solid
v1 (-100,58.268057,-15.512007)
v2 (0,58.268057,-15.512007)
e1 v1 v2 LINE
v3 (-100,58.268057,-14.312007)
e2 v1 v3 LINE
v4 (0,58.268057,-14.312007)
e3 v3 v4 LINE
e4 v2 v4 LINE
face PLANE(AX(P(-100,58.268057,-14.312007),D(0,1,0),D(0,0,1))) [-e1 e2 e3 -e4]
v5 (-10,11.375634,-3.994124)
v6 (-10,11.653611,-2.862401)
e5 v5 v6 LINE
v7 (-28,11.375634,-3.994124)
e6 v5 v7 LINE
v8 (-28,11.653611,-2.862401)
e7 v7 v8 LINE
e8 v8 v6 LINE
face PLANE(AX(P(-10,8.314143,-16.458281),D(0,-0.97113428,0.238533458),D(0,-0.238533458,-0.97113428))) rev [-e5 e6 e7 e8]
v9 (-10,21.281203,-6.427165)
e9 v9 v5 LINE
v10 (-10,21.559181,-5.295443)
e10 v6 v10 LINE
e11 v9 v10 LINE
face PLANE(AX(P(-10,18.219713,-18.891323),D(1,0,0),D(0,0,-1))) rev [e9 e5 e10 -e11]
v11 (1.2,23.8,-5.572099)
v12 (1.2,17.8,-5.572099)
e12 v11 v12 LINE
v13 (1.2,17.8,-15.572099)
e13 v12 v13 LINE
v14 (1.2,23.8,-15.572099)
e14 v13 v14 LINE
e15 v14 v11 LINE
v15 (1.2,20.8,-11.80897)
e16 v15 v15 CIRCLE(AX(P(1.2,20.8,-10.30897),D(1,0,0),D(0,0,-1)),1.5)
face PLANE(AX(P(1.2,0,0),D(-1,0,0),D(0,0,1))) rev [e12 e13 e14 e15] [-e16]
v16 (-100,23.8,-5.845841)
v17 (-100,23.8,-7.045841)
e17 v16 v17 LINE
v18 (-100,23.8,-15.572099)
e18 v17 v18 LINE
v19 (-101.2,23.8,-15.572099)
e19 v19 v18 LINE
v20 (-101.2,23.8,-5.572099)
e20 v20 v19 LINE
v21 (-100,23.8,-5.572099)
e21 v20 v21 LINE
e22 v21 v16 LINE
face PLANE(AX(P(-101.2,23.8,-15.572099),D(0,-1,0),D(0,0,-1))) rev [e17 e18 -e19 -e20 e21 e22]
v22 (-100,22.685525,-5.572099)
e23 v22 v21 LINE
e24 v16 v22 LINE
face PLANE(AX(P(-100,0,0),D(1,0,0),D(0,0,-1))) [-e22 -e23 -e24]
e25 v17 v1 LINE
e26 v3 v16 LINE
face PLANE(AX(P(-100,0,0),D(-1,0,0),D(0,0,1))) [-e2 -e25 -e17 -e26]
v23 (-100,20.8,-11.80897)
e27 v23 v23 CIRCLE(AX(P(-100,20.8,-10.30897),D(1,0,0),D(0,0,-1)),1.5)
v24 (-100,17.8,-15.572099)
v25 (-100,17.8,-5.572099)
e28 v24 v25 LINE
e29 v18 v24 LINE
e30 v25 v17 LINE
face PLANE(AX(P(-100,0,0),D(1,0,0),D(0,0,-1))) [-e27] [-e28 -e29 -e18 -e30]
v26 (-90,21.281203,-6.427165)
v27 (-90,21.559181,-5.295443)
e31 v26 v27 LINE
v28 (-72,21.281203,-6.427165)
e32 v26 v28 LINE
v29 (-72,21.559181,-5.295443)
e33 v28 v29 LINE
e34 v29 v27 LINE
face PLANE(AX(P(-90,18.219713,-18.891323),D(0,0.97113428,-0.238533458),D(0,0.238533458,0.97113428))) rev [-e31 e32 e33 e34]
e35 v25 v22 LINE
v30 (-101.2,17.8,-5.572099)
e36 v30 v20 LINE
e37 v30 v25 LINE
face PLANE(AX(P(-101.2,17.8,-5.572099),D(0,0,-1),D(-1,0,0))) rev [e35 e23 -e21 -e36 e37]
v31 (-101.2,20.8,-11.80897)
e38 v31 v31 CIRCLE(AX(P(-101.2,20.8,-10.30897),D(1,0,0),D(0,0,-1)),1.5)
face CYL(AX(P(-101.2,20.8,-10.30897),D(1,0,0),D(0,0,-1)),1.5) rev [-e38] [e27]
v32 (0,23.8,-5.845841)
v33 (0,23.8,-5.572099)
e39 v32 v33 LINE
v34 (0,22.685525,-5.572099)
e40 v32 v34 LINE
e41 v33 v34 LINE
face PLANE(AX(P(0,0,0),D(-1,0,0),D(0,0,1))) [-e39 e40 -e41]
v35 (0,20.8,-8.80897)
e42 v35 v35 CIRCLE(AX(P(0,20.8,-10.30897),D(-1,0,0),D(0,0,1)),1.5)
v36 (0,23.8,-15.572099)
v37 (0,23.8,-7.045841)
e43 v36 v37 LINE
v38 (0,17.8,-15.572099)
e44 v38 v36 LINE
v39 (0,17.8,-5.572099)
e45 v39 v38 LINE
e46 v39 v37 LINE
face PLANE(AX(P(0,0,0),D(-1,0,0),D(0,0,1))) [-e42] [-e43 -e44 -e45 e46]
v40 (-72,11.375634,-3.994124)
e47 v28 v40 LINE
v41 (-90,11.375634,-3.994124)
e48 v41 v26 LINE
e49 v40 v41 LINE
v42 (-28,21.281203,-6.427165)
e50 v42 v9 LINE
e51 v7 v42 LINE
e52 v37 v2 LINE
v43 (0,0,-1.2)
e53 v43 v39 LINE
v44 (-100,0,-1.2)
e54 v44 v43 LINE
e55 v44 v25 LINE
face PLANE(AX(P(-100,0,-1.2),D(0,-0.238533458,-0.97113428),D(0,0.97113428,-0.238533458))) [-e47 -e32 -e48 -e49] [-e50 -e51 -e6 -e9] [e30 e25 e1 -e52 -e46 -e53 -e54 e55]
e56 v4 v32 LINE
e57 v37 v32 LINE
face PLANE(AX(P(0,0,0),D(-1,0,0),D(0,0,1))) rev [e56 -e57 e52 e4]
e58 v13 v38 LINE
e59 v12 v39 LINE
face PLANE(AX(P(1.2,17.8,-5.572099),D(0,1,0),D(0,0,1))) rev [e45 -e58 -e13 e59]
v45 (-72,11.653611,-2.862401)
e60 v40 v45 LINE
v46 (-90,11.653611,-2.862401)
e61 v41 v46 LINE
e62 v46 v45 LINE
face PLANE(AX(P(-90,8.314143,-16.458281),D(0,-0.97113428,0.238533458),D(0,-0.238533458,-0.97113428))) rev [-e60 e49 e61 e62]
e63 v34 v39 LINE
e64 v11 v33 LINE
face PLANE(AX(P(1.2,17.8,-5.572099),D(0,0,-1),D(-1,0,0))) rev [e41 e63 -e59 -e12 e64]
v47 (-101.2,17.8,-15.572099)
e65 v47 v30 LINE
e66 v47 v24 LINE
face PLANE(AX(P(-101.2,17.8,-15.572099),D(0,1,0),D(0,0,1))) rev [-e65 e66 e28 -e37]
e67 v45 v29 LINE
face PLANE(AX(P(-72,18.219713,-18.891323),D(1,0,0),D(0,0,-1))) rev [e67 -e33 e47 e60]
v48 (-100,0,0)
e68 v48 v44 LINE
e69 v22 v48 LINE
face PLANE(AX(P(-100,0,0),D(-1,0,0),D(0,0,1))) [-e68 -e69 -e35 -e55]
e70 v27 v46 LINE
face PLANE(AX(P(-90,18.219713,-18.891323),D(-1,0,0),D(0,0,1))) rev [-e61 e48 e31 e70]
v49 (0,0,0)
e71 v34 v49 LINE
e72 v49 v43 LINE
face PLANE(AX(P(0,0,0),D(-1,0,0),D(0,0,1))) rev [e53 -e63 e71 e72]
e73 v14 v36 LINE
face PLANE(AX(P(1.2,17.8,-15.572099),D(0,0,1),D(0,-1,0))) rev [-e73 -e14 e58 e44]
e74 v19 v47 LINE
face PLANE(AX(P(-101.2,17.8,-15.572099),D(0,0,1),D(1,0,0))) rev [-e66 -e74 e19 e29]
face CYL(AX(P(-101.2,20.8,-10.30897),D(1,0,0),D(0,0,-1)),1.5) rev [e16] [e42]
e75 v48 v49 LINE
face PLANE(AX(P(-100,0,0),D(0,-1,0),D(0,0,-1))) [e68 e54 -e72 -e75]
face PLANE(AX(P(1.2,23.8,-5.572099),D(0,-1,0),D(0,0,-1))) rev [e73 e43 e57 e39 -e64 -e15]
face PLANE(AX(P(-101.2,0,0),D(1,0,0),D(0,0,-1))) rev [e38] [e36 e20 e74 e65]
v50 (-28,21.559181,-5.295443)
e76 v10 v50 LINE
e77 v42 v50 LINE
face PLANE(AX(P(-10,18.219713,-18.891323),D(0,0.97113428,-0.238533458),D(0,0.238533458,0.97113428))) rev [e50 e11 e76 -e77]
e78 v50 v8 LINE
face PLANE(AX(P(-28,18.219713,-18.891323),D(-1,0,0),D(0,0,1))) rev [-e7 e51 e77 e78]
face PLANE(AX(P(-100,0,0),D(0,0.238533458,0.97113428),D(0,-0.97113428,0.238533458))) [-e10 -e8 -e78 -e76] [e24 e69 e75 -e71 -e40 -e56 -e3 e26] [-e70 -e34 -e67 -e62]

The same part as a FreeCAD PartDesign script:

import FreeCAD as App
import Part
import Sketcher

V = App.Vector
Q = App.Units.Quantity


def add_polygon(sketch, points):
    """Adds a closed chain of lines whose ends are joined by coincident constraints."""
    first, n = sketch.GeometryCount, len(points)
    for a, b in zip(points, points[1:] + points[:1]):
        sketch.addGeometry(Part.LineSegment(App.Vector(*a, 0), App.Vector(*b, 0)), False)
    for i in range(n):
        sketch.addConstraint(Sketcher.Constraint("Coincident", first + i, 2, first + (i + 1) % n, 1))

doc = App.newDocument("Part")
body = doc.addObject("PartDesign::Body", "Body")

sketch1 = body.newObject("Sketcher::SketchObject", "Sketch")
sketch1.AttachmentSupport = (doc.getObject("YZ_Plane"), [""])
sketch1.MapMode = "FlatFace"
add_polygon(sketch1, [(0, 0), (0, -1.2), (58.3, -15.5), (58.3, -14.3)])
sketch1.addConstraint([
    Sketcher.Constraint("Vertical", 0),
    Sketcher.Constraint("Vertical", 2),
    Sketcher.Constraint("Coincident", 3, 2, -1, 1),
    Sketcher.Constraint("Parallel", 1, 3),
    Sketcher.Constraint("Distance", 1, Q("60 mm")),
    Sketcher.Constraint("DistanceY", 0, 2, 0, 1, Q("1.2 mm")),
    Sketcher.Constraint("Angle", 1, Q("-13.8 deg")),
])
pad1 = body.newObject("PartDesign::Pad", "Pad")
pad1.Profile = sketch1
pad1.Length = 100
pad1.Reversed = True

sketch2 = body.newObject("Sketcher::SketchObject", "Sketch001")
sketch2.AttachmentSupport = (doc.getObject("YZ_Plane"), [""])
sketch2.MapMode = "FlatFace"
add_polygon(sketch2, [(24, -6), (18, -6), (18, -16), (24, -16)])
sketch2.addConstraint([
    Sketcher.Constraint("Horizontal", 0),
    Sketcher.Constraint("Vertical", 1),
    Sketcher.Constraint("Horizontal", 2),
    Sketcher.Constraint("Vertical", 3),
    Sketcher.Constraint("DistanceX", 0, 2, 0, 1, Q("6 mm")),
    Sketcher.Constraint("DistanceY", 1, 2, 1, 1, Q("10 mm")),
    Sketcher.Constraint("DistanceX", -1, 1, 0, 2, Q("17.8 mm")),
    Sketcher.Constraint("DistanceY", 0, 2, -1, 1, Q("5.572099 mm")),
])
pad2 = body.newObject("PartDesign::Pad", "Pad001")
pad2.Profile = sketch2
pad2.Length = 1.2

sketch3 = body.newObject("Sketcher::SketchObject", "Sketch002")
sketch3.AttachmentSupport = (doc.getObject("YZ_Plane"), [""])
sketch3.MapMode = "FlatFace"
sketch3.AttachmentOffset = App.Placement(V(0, 0, -100), App.Rotation())
add_polygon(sketch3, [(24, -16), (18, -16), (18, -6), (24, -6)])
sketch3.addConstraint([
    Sketcher.Constraint("Horizontal", 0),
    Sketcher.Constraint("Vertical", 1),
    Sketcher.Constraint("Horizontal", 2),
    Sketcher.Constraint("Vertical", 3),
    Sketcher.Constraint("DistanceX", 0, 2, 0, 1, Q("6 mm")),
    Sketcher.Constraint("DistanceY", 1, 1, 1, 2, Q("10 mm")),
    Sketcher.Constraint("DistanceX", -1, 1, 0, 2, Q("17.8 mm")),
    Sketcher.Constraint("DistanceY", 0, 2, -1, 1, Q("15.572099 mm")),
])
pad3 = body.newObject("PartDesign::Pad", "Pad002")
pad3.Profile = sketch3
pad3.Length = 1.2
pad3.Reversed = True

sketch4 = body.newObject("Sketcher::SketchObject", "Sketch003")
sketch4.AttachmentSupport = (doc.getObject("YZ_Plane"), [""])
sketch4.MapMode = "FlatFace"
sketch4.AttachmentOffset = App.Placement(V(0, 0, 1.2), App.Rotation())
sketch4.addGeometry(Part.Circle(V(20.8, -10.3, 0), V(0, 0, 1), 1.5), False)
sketch4.addConstraint([
    Sketcher.Constraint("Diameter", 0, Q("3 mm")),
    Sketcher.Constraint("DistanceX", -1, 1, 0, 3, Q("20.8 mm")),
    Sketcher.Constraint("DistanceY", 0, 3, -1, 1, Q("10.30897 mm")),
])
pocket1 = body.newObject("PartDesign::Pocket", "Pocket")
pocket1.Profile = sketch4
pocket1.Type = "ThroughAll"

sketch5 = body.newObject("Sketcher::SketchObject", "Sketch004")
sketch5.Placement = App.Placement(V(0, 0, 0), App.Rotation(V(1, 0, 0), V(0, 0.97113428, -0.238533458), V(0, 0.238533458, 0.97113428), "ZXY"))
add_polygon(sketch5, [(-90, 22), (-90, 12), (-72, 12), (-72, 22)])
add_polygon(sketch5, [(-28, 22), (-28, 12), (-10, 12), (-10, 22)])
sketch5.addConstraint([
    Sketcher.Constraint("Vertical", 0),
    Sketcher.Constraint("Horizontal", 1),
    Sketcher.Constraint("Vertical", 2),
    Sketcher.Constraint("Horizontal", 3),
    Sketcher.Constraint("Vertical", 4),
    Sketcher.Constraint("Horizontal", 5),
    Sketcher.Constraint("Vertical", 6),
    Sketcher.Constraint("Horizontal", 7),
    Sketcher.Constraint("Horizontal", 1, 2, 4, 2),
    Sketcher.Constraint("Horizontal", 3, 2, 6, 2),
    Sketcher.Constraint("Equal", 3, 5),
    Sketcher.Constraint("DistanceX", 1, 1, 1, 2, Q("18 mm")),
    Sketcher.Constraint("DistanceY", 0, 2, 0, 1, Q("10.2 mm")),
    Sketcher.Constraint("DistanceX", 0, 2, -1, 1, Q("90 mm")),
    Sketcher.Constraint("DistanceY", -1, 1, 0, 2, Q("12 mm")),
    Sketcher.Constraint("DistanceX", 4, 2, -1, 1, Q("28 mm")),
])
pocket2 = body.newObject("PartDesign::Pocket", "Pocket001")
pocket2.Profile = sketch5
pocket2.Length = 14

doc.recompute()
